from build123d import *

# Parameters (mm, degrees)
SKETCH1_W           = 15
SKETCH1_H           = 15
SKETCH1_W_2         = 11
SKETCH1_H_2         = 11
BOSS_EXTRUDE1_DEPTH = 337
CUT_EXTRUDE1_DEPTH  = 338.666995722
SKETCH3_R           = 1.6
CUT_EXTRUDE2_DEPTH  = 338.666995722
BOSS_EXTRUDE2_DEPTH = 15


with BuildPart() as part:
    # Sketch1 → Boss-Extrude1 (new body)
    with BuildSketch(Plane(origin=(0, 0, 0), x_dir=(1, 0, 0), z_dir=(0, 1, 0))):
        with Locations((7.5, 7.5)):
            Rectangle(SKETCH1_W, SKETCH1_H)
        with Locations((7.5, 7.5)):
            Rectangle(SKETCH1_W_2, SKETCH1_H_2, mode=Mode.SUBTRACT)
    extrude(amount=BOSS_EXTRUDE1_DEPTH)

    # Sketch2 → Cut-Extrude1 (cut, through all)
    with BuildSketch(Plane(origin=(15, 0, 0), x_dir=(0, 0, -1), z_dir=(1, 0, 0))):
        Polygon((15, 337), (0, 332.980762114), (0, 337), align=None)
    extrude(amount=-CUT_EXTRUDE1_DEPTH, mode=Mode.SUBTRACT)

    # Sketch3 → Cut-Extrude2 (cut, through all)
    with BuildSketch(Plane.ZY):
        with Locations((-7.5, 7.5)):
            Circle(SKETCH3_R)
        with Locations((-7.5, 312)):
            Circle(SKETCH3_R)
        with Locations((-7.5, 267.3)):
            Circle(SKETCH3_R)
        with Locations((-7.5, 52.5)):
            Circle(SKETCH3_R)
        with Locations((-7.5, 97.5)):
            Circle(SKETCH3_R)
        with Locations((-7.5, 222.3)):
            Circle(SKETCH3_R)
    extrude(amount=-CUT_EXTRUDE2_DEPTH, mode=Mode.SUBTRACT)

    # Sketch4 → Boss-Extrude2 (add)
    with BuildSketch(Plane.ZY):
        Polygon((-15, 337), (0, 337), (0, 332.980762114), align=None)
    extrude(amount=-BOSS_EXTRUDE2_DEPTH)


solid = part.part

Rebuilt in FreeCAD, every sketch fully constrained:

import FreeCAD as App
import Part
import Sketcher
Q = App.Units.Quantity

doc = App.newDocument("Part")
body = doc.addObject("PartDesign::Body", "Body")

sketch1 = body.newObject("Sketcher::SketchObject", "Sketch")
sketch1.AttachmentSupport = (doc.getObject("XZ_Plane"), [""])
sketch1.MapMode = "FlatFace"
sketch1.addGeometry([
    Part.LineSegment(App.Vector(0, -15, 0), App.Vector(0, 0, 0)),
    Part.LineSegment(App.Vector(0, 0, 0), App.Vector(15, 0, 0)),
    Part.LineSegment(App.Vector(15, 0, 0), App.Vector(15, -15, 0)),
    Part.LineSegment(App.Vector(15, -15, 0), App.Vector(0, -15, 0)),
    Part.LineSegment(App.Vector(13, -2, 0), App.Vector(2, -2, 0)),
    Part.LineSegment(App.Vector(2, -2, 0), App.Vector(2, -13, 0)),
    Part.LineSegment(App.Vector(2, -13, 0), App.Vector(13, -13, 0)),
    Part.LineSegment(App.Vector(13, -13, 0), App.Vector(13, -2, 0)),
], False)
sketch1.addConstraint([
    Sketcher.Constraint("Coincident", 0, 2, 1, 1),
    Sketcher.Constraint("Coincident", 1, 2, 2, 1),
    Sketcher.Constraint("Coincident", 2, 2, 3, 1),
    Sketcher.Constraint("Coincident", 3, 2, 0, 1),
    Sketcher.Constraint("Coincident", 4, 2, 5, 1),
    Sketcher.Constraint("Coincident", 5, 2, 6, 1),
    Sketcher.Constraint("Coincident", 6, 2, 7, 1),
    Sketcher.Constraint("Coincident", 7, 2, 4, 1),
    Sketcher.Constraint("Vertical", 0),
    Sketcher.Constraint("Horizontal", 1),
    Sketcher.Constraint("Vertical", 2),
    Sketcher.Constraint("Horizontal", 3),
    Sketcher.Constraint("Horizontal", 4),
    Sketcher.Constraint("Vertical", 5),
    Sketcher.Constraint("Horizontal", 6),
    Sketcher.Constraint("Vertical", 7),
    Sketcher.Constraint("Coincident", 0, 2, -1, 1),
    Sketcher.Constraint("Equal", 3, 0),
    Sketcher.Constraint("Equal", 6, 5),
    Sketcher.Constraint("DistanceX", 1, 1, 1, 2, Q("15 mm")),
    Sketcher.Constraint("DistanceX", 4, 2, 4, 1, Q("11 mm")),
    Sketcher.Constraint("DistanceX", -1, 1, 4, 2, Q("2 mm")),
    Sketcher.Constraint("DistanceY", 4, 2, -1, 1, Q("2 mm")),
])
pad1 = body.newObject("PartDesign::Pad", "Pad")
pad1.Profile = sketch1
pad1.Length = 337
pad1.Reversed = True

sketch2 = body.newObject("Sketcher::SketchObject", "Sketch001")
sketch2.AttachmentSupport = (doc.getObject("YZ_Plane"), [""])
sketch2.MapMode = "FlatFace"
sketch2.AttachmentOffset = App.Placement(App.Vector(0, 0, 15), App.Rotation())
sketch2.addGeometry([
    Part.LineSegment(App.Vector(333, 0, 0), App.Vector(337, -15, 0)),
    Part.LineSegment(App.Vector(337, -15, 0), App.Vector(337, 0, 0)),
    Part.LineSegment(App.Vector(337, 0, 0), App.Vector(333, 0, 0)),
], False)
sketch2.addConstraint([
    Sketcher.Constraint("Coincident", 0, 2, 1, 1),
    Sketcher.Constraint("Coincident", 1, 2, 2, 1),
    Sketcher.Constraint("Coincident", 2, 2, 0, 1),
    Sketcher.Constraint("Vertical", 1),
    Sketcher.Constraint("Horizontal", 2),
    Sketcher.Constraint("PointOnObject", 1, 2, -1),
    Sketcher.Constraint("DistanceY", 1, 1, 1, 2, Q("15 mm")),
    Sketcher.Constraint("Angle", 0, Q("-75 deg")),
    Sketcher.Constraint("DistanceX", -1, 1, 0, 2, Q("337 mm")),
])
pocket1 = body.newObject("PartDesign::Pocket", "Pocket")
pocket1.Profile = sketch2
pocket1.Type = "ThroughAll"

sketch3 = body.newObject("Sketcher::SketchObject", "Sketch002")
sketch3.AttachmentSupport = (doc.getObject("YZ_Plane"), [""])
sketch3.MapMode = "FlatFace"
sketch3.addGeometry([
    Part.Circle(App.Vector(7.5, -7.5, 0), App.Vector(0, 0, 1), 1.6),
    Part.Circle(App.Vector(312, -7.5, 0), App.Vector(0, 0, 1), 1.6),
    Part.Circle(App.Vector(267.3, -7.5, 0), App.Vector(0, 0, 1), 1.6),
    Part.Circle(App.Vector(52.5, -7.5, 0), App.Vector(0, 0, 1), 1.6),
    Part.Circle(App.Vector(97.5, -7.5, 0), App.Vector(0, 0, 1), 1.6),
    Part.Circle(App.Vector(222.3, -7.5, 0), App.Vector(0, 0, 1), 1.6),
], False)
sketch3.addConstraint([
    Sketcher.Constraint("Equal", 0, 1),
    Sketcher.Constraint("Equal", 1, 2),
    Sketcher.Constraint("Equal", 2, 3),
    Sketcher.Constraint("Equal", 3, 4),
    Sketcher.Constraint("Equal", 4, 5),
    Sketcher.Constraint("Horizontal", 0, 3, 1, 3),
    Sketcher.Constraint("Horizontal", 1, 3, 2, 3),
    Sketcher.Constraint("Horizontal", 2, 3, 3, 3),
    Sketcher.Constraint("Horizontal", 3, 3, 4, 3),
    Sketcher.Constraint("Horizontal", 4, 3, 5, 3),
    Sketcher.Constraint("Diameter", 0, Q("3.2 mm")),
    Sketcher.Constraint("DistanceX", -1, 1, 1, 3, Q("312 mm")),
    Sketcher.Constraint("DistanceX", 0, 3, 3, 3, Q("45 mm")),
    Sketcher.Constraint("DistanceX", 3, 3, 4, 3, Q("45 mm")),
    Sketcher.Constraint("DistanceX", 5, 3, 2, 3, Q("45 mm")),
    Sketcher.Constraint("DistanceX", -1, 1, 0, 3, Q("7.5 mm")),
    Sketcher.Constraint("DistanceY", 0, 3, -1, 1, Q("7.5 mm")),
    Sketcher.Constraint("DistanceX", -1, 1, 2, 3, Q("267.3 mm")),
])
pocket2 = body.newObject("PartDesign::Pocket", "Pocket001")
pocket2.Profile = sketch3
pocket2.Type = "ThroughAll"
pocket2.Reversed = True

sketch4 = body.newObject("Sketcher::SketchObject", "Sketch003")
sketch4.AttachmentSupport = (doc.getObject("YZ_Plane"), [""])
sketch4.MapMode = "FlatFace"
sketch4.addGeometry([
    Part.LineSegment(App.Vector(337, 0, 0), App.Vector(337, -15, 0)),
    Part.LineSegment(App.Vector(337, -15, 0), App.Vector(333, 0, 0)),
    Part.LineSegment(App.Vector(333, 0, 0), App.Vector(337, 0, 0)),
], False)
sketch4.addConstraint([
    Sketcher.Constraint("Coincident", 0, 2, 1, 1),
    Sketcher.Constraint("Coincident", 1, 2, 2, 1),
    Sketcher.Constraint("Coincident", 2, 2, 0, 1),
    Sketcher.Constraint("Vertical", 0),
    Sketcher.Constraint("Horizontal", 2),
    Sketcher.Constraint("PointOnObject", 1, 2, -1),
    Sketcher.Constraint("DistanceY", 0, 2, 0, 1, Q("15 mm")),
    Sketcher.Constraint("Angle", 1, Q("105 deg")),
    Sketcher.Constraint("DistanceX", -1, 1, 0, 2, Q("337 mm")),
])
pad2 = body.newObject("PartDesign::Pad", "Pad001")
pad2.Profile = sketch4
pad2.Length = 15

doc.recompute()
